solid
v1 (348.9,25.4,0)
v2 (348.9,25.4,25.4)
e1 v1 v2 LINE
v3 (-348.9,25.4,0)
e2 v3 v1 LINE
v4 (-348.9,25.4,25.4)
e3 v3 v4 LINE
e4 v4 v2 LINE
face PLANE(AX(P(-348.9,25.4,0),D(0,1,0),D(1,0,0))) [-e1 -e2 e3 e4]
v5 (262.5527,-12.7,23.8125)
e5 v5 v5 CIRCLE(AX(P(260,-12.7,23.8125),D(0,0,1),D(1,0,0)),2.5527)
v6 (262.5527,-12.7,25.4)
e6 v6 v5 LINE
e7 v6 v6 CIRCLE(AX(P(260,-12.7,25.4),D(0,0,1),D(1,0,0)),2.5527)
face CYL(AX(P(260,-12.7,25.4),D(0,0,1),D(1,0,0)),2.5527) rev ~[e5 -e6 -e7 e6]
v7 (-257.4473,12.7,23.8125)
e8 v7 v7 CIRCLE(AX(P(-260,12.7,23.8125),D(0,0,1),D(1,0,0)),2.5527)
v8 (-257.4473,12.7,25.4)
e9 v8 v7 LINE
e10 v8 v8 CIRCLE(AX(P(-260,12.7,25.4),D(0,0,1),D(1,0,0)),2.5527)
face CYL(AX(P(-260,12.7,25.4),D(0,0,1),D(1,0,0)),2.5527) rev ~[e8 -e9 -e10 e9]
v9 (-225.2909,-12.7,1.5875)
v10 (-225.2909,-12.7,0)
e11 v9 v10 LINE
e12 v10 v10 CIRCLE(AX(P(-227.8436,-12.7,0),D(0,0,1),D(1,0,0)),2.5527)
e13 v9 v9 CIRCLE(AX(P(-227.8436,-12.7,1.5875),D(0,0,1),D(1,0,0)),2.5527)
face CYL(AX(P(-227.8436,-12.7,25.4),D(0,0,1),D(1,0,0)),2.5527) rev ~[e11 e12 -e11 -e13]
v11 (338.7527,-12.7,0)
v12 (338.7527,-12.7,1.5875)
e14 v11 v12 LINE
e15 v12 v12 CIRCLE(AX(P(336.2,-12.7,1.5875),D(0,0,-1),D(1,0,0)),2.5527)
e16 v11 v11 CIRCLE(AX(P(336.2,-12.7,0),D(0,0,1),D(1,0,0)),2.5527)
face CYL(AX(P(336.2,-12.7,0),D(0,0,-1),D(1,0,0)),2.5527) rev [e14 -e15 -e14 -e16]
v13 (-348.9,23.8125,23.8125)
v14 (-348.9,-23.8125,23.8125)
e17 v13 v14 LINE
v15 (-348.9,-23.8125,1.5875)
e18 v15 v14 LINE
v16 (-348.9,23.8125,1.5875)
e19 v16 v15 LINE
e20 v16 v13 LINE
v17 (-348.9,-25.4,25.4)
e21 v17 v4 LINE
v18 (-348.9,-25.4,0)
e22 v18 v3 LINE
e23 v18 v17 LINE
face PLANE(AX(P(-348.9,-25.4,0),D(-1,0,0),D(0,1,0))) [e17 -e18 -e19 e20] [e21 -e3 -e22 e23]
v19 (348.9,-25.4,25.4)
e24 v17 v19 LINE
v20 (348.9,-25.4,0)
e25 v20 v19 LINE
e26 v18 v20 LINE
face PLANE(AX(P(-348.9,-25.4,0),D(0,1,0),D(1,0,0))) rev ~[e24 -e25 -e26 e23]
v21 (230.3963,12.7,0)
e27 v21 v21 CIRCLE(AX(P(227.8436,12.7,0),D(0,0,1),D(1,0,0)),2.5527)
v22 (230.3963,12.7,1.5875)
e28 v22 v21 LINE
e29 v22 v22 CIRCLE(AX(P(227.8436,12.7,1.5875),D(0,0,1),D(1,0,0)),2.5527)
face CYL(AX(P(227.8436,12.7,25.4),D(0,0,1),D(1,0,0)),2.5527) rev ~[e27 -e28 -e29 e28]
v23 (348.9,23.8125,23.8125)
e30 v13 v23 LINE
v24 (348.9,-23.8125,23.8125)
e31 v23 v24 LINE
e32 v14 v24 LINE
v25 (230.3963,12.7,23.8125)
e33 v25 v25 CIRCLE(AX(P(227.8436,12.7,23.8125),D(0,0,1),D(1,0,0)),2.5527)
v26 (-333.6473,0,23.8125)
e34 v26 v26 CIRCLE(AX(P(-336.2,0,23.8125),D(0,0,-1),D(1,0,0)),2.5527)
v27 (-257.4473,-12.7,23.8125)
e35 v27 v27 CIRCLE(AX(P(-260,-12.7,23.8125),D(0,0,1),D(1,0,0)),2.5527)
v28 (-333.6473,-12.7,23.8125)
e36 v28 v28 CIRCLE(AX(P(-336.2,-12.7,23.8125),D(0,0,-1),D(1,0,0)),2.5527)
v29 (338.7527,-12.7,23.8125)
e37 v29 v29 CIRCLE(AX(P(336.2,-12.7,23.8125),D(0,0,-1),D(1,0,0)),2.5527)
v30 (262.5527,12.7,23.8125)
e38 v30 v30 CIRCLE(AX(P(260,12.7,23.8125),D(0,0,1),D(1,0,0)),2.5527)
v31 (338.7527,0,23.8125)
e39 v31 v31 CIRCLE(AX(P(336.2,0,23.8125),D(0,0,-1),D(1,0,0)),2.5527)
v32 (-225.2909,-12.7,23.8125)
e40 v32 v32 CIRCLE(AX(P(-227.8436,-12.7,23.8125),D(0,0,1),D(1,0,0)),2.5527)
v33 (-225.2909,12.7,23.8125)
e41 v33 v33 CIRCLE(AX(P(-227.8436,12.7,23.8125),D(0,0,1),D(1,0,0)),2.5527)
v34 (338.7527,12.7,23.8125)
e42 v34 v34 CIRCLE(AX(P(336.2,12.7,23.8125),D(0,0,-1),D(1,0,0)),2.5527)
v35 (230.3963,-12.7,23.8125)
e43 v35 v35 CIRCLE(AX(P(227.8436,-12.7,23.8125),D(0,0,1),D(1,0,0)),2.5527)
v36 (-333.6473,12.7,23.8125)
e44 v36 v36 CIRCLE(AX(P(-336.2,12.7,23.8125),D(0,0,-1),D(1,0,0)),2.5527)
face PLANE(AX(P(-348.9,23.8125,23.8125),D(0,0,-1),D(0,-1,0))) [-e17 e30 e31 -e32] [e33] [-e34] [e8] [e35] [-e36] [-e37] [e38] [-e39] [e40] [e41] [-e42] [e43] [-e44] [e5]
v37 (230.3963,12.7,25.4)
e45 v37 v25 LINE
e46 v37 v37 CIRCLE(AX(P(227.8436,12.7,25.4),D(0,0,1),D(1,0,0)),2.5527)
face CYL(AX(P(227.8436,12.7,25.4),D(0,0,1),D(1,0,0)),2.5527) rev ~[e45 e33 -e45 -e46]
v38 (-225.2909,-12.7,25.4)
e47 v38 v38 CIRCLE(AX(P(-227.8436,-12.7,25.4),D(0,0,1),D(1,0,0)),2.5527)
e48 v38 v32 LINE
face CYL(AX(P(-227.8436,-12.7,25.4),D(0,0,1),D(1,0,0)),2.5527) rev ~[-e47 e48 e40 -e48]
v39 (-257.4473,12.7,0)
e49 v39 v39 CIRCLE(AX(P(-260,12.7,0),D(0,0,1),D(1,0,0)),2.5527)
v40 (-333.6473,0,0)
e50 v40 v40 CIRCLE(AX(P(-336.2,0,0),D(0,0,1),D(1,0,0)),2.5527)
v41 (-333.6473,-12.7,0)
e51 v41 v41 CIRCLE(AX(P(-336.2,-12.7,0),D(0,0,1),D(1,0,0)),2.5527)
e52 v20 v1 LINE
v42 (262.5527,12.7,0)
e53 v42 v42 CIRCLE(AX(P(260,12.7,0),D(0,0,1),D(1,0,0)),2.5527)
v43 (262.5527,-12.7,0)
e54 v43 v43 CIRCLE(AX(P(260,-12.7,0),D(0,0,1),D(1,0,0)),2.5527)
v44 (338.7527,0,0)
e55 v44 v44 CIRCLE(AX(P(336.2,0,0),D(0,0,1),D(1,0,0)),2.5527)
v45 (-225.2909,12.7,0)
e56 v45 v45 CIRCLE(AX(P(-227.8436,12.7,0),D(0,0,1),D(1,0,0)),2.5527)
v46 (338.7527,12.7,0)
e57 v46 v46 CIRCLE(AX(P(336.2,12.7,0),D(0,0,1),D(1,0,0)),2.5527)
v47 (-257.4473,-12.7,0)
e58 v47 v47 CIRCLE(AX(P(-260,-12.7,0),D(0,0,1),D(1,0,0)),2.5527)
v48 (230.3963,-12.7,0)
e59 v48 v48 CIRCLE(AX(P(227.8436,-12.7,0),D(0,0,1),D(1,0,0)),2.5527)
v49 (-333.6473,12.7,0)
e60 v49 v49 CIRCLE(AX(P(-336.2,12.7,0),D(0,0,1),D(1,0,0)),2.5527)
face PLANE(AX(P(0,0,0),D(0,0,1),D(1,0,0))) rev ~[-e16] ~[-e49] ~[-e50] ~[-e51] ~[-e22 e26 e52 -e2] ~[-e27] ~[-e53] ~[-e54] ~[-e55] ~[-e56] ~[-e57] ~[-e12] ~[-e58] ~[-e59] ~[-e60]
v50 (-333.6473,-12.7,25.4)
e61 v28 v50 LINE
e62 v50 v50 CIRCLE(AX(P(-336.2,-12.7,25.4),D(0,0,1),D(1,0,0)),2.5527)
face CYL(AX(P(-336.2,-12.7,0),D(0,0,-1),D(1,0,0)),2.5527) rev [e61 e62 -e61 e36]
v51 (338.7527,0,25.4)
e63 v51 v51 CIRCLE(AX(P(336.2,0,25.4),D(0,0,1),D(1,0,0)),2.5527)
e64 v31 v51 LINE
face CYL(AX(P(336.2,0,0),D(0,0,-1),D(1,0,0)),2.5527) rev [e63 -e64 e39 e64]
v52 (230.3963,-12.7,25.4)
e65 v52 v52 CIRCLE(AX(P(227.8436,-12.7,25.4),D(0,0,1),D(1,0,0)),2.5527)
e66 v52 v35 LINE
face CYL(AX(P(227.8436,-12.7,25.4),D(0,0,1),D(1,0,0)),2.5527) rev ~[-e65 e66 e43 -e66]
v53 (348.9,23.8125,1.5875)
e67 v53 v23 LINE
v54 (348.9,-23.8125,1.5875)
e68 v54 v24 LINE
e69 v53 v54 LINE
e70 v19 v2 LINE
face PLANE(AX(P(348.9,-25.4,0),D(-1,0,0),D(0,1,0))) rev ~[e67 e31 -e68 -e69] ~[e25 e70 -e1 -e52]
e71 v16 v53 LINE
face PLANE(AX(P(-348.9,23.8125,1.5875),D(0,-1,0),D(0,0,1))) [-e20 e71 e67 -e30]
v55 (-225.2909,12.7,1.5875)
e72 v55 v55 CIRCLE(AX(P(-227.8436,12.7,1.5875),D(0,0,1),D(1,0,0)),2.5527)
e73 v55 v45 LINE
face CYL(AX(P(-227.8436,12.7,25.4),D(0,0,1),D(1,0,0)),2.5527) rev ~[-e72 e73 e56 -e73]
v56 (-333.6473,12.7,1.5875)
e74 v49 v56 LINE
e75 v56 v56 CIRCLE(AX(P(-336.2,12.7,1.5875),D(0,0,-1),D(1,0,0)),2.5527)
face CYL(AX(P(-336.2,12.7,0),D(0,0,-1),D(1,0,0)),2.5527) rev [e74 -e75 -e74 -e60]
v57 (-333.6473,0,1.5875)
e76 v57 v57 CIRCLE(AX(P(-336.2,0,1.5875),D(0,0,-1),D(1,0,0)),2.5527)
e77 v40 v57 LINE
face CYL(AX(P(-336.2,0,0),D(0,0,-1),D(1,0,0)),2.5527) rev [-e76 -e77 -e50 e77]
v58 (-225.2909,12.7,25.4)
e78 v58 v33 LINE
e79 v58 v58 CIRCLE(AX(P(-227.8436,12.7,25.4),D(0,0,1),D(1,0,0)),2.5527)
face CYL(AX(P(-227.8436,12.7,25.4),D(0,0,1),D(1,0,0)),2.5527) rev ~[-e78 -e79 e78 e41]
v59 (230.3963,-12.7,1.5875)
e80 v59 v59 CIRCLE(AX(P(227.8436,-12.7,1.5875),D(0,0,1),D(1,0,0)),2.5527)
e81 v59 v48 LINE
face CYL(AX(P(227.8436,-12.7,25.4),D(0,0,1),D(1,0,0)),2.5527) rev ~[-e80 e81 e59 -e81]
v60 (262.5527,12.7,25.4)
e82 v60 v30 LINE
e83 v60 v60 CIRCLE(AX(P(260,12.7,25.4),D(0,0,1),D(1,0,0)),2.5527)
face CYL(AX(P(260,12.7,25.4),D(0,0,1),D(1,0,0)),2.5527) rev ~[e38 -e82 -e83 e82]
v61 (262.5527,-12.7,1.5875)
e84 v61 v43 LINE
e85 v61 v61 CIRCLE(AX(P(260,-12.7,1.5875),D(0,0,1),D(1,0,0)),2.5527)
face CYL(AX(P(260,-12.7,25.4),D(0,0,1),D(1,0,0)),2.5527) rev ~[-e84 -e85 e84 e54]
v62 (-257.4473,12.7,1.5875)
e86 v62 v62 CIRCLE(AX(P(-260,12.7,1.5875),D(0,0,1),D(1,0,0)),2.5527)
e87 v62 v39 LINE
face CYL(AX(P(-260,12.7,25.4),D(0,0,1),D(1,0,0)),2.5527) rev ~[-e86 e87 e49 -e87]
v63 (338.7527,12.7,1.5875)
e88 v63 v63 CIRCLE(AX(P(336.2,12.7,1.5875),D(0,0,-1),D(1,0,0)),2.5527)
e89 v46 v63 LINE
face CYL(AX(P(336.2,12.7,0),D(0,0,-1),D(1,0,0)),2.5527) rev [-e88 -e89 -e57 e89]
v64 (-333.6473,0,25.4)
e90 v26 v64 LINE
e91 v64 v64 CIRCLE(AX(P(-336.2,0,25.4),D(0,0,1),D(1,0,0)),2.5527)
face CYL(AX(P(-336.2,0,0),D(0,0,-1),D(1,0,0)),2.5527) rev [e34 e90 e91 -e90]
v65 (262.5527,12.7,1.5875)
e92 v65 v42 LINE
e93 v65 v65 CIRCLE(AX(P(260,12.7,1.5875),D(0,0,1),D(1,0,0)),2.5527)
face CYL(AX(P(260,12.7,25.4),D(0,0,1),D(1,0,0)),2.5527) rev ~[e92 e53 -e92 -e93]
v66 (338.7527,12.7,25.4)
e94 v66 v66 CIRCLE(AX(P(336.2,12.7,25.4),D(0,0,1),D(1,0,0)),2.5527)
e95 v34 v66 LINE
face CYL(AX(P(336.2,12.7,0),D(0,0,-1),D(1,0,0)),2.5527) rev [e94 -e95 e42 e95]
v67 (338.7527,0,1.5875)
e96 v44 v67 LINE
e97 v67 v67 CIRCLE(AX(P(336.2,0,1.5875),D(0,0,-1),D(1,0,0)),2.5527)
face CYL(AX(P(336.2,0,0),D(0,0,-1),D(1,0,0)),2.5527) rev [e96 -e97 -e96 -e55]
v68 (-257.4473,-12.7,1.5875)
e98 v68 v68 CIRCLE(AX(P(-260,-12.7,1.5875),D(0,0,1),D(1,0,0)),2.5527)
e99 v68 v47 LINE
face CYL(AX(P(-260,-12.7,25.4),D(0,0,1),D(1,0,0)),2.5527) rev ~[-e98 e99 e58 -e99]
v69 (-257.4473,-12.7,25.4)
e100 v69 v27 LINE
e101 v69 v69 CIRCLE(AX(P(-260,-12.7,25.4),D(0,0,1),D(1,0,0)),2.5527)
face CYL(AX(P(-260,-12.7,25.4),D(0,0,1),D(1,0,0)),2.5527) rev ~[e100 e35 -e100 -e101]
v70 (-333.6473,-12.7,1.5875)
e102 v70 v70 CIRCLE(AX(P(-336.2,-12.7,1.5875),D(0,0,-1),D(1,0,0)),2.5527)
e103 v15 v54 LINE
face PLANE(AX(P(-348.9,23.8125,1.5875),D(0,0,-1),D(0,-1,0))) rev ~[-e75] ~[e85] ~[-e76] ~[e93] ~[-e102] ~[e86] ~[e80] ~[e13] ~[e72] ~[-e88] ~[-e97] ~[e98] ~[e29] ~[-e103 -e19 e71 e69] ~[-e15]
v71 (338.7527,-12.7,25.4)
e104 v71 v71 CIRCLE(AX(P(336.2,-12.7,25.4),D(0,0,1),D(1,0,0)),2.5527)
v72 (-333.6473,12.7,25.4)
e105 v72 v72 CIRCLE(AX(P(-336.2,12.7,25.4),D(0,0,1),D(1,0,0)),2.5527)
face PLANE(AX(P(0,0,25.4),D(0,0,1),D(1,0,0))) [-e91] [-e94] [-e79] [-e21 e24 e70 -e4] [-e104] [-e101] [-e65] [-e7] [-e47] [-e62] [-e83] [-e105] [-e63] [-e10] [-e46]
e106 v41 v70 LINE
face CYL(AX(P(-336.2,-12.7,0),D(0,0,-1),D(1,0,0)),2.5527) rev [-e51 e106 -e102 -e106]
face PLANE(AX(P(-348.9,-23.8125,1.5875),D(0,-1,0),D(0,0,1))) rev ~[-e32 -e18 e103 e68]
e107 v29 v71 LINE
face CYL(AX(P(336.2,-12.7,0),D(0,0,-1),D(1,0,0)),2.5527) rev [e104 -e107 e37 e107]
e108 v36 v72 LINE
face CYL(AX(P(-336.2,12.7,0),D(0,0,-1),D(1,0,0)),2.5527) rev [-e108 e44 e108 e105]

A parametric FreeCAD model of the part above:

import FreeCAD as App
import Part
import Sketcher
Q = App.Units.Quantity


def add_polygon(sketch, points):
    """Adds a closed chain of lines whose ends are joined by coincident constraints."""
    first, n = sketch.GeometryCount, len(points)
    for a, b in zip(points, points[1:] + points[:1]):
        sketch.addGeometry(Part.LineSegment(App.Vector(*a, 0), App.Vector(*b, 0)), False)
    for i in range(n):
        sketch.addConstraint(Sketcher.Constraint("Coincident", first + i, 2, first + (i + 1) % n, 1))

doc = App.newDocument("Part")
body = doc.addObject("PartDesign::Body", "Body")

# Sketch on XY plane
sketch1 = body.newObject("Sketcher::SketchObject", "Sketch")
sketch1.AttachmentSupport = (doc.getObject("XY_Plane"), [""])
sketch1.MapMode = "FlatFace"
add_polygon(sketch1, [(-348.9, 25.4), (-348.9, -25.4), (348.9, -25.4), (348.9, 25.4)])  # lines 0-3
sketch1.addGeometry(Part.Circle(App.Vector(-336.2, -12.7, 0), App.Vector(0, 0, 1), 2.5527), False)  # 4
sketch1.addGeometry(Part.Circle(App.Vector(336.2, -12.7, 0), App.Vector(0, 0, 1), 2.5527), False)  # 5
sketch1.addGeometry(Part.Circle(App.Vector(-336.2, 0, 0), App.Vector(0, 0, 1), 2.5527), False)  # 6
sketch1.addGeometry(Part.Circle(App.Vector(-336.2, 12.7, 0), App.Vector(0, 0, 1), 2.5527), False)  # 7
sketch1.addGeometry(Part.Circle(App.Vector(336.2, 0, 0), App.Vector(0, 0, 1), 2.5527), False)  # 8
sketch1.addGeometry(Part.Circle(App.Vector(336.2, 12.7, 0), App.Vector(0, 0, 1), 2.5527), False)  # 9
sketch1.addConstraint([
    Sketcher.Constraint("Vertical", 0),
    Sketcher.Constraint("Horizontal", 1),
    Sketcher.Constraint("Vertical", 2),
    Sketcher.Constraint("Horizontal", 3),
    Sketcher.Constraint("Equal", 4, 5),
    Sketcher.Constraint("Equal", 5, 6),
    Sketcher.Constraint("Equal", 6, 7),
    Sketcher.Constraint("Equal", 7, 8),
    Sketcher.Constraint("Equal", 8, 9),
    Sketcher.Constraint("Symmetric", 5, 3, 7, 3, -1, 1),
    Sketcher.Constraint("Symmetric", 6, 3, 8, 3, -1, 1),
    Sketcher.Constraint("Symmetric", 4, 3, 9, 3, -1, 1),
    Sketcher.Constraint("Symmetric", 0, 2, 2, 2, -1, 1),
    Sketcher.Constraint("Symmetric", 4, 3, 5, 3, -2),
    Sketcher.Constraint("PointOnObject", 6, 3, -1),
    Sketcher.Constraint("Vertical", 4, 3, 6, 3),
    Sketcher.Constraint("DistanceY", 0, 2, 0, 1, Q("2 in")),
    Sketcher.Constraint("Diameter", 4, Q("0.201 in")),
    Sketcher.Constraint("DistanceY", 4, 3, 7, 3, Q("1 in")),
    Sketcher.Constraint("DistanceX", 0, 2, 4, 3, Q("0.5 in")),
    Sketcher.Constraint("DistanceX", 1, 1, 1, 2, Q("697.8 mm")),
])
pad1 = body.newObject("PartDesign::Pad", "Pad")
pad1.Profile = sketch1
pad1.Length = Q("1 in")

# Sketch on YZ plane
sketch2 = body.newObject("Sketcher::SketchObject", "Sketch001")
sketch2.AttachmentSupport = (doc.getObject("YZ_Plane"), [""])
sketch2.MapMode = "FlatFace"
sketch2.AttachmentOffset = App.Placement(App.Vector(0, 0, -348.9), App.Rotation())
add_polygon(sketch2, [(23.8125, 23.8125), (23.8125, 1.5875), (-23.8125, 1.5875), (-23.8125, 23.8125)])  # lines 0-3
sketch2.addConstraint([
    Sketcher.Constraint("Vertical", 0),
    Sketcher.Constraint("Horizontal", 1),
    Sketcher.Constraint("Vertical", 2),
    Sketcher.Constraint("Horizontal", 3),
    Sketcher.Constraint("DistanceX", 1, 2, 1, 1, Q("1.875 in")),
    Sketcher.Constraint("DistanceY", 0, 2, 0, 1, Q("0.875 in")),
    Sketcher.Constraint("DistanceX", -1, 1, 0, 2, Q("0.9375 in")),
    Sketcher.Constraint("DistanceY", -1, 1, 0, 2, Q("0.0625 in")),
])
pocket1 = body.newObject("PartDesign::Pocket", "Pocket")
pocket1.Profile = sketch2
pocket1.Type = "ThroughAll"
pocket1.Reversed = True

# Sketch on XY plane
sketch3 = body.newObject("Sketcher::SketchObject", "Sketch002")
sketch3.AttachmentSupport = (doc.getObject("XY_Plane"), [""])
sketch3.MapMode = "FlatFace"
sketch3.AttachmentOffset = App.Placement(App.Vector(0, 0, 1 * 25.4), App.Rotation())
sketch3.addGeometry([
    Part.Circle(App.Vector(-227.8436, 12.7, 0), App.Vector(0, 0, 1), 2.5527),  # 0
    Part.Circle(App.Vector(-227.8436, -12.7, 0), App.Vector(0, 0, 1), 2.5527),  # 1
    Part.Circle(App.Vector(-260, -12.7, 0), App.Vector(0, 0, 1), 2.5527),  # 2
    Part.Circle(App.Vector(-260, 12.7, 0), App.Vector(0, 0, 1), 2.5527),  # 3
    Part.Circle(App.Vector(227.8436, 12.7, 0), App.Vector(0, 0, 1), 2.5527),  # 4
    Part.Circle(App.Vector(260, -12.7, 0), App.Vector(0, 0, 1), 2.5527),  # 5
    Part.Circle(App.Vector(227.8436, -12.7, 0), App.Vector(0, 0, 1), 2.5527),  # 6
    Part.Circle(App.Vector(260, 12.7, 0), App.Vector(0, 0, 1), 2.5527),  # 7
], False)
sketch3.addConstraint([
    Sketcher.Constraint("Equal", 0, 1),
    Sketcher.Constraint("Equal", 1, 2),
    Sketcher.Constraint("Equal", 2, 3),
    Sketcher.Constraint("Equal", 3, 4),
    Sketcher.Constraint("Equal", 4, 5),
    Sketcher.Constraint("Equal", 5, 6),
    Sketcher.Constraint("Equal", 6, 7),
    Sketcher.Constraint("Symmetric", 1, 3, 4, 3, -1, 1),
    Sketcher.Constraint("Symmetric", 3, 3, 5, 3, -1, 1),
    Sketcher.Constraint("Symmetric", 0, 3, 6, 3, -1, 1),
    Sketcher.Constraint("Symmetric", 2, 3, 7, 3, -1, 1),
    Sketcher.Constraint("Symmetric", 0, 3, 4, 3, -2),
    Sketcher.Constraint("Symmetric", 2, 3, 5, 3, -2),
    Sketcher.Constraint("Horizontal", 1, 3, 2, 3),
    Sketcher.Constraint("Diameter", 0, Q("0.201 in")),
    Sketcher.Constraint("DistanceY", 1, 3, 0, 3, Q("1 in")),
    Sketcher.Constraint("DistanceX", 2, 3, 1, 3, Q("1.266 in")),
    Sketcher.Constraint("DistanceX", 0, 3, -1, 1, Q("227.8436 mm")),
])
pocket2 = body.newObject("PartDesign::Pocket", "Pocket001")
pocket2.Profile = sketch3
pocket2.Length = Q("1 in")

doc.recompute()
